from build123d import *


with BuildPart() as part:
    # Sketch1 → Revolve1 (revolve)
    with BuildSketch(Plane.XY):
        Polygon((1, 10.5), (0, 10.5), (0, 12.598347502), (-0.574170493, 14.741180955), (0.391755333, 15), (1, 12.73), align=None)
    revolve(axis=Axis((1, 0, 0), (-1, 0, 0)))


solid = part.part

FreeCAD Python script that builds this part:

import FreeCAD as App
import Part
import Sketcher
Q = App.Units.Quantity


def add_polygon(sketch, points):
    """Adds a closed chain of lines whose ends are joined by coincident constraints."""
    first, n = sketch.GeometryCount, len(points)
    for a, b in zip(points, points[1:] + points[:1]):
        sketch.addGeometry(Part.LineSegment(App.Vector(*a, 0), App.Vector(*b, 0)), False)
    for i in range(n):
        sketch.addConstraint(Sketcher.Constraint("Coincident", first + i, 2, first + (i + 1) % n, 1))

doc = App.newDocument("Part")
body = doc.addObject("PartDesign::Body", "Body")

# Sketch on XY plane
sketch1 = body.newObject("Sketcher::SketchObject", "Sketch")
sketch1.AttachmentSupport = (doc.getObject("XY_Plane"), [""])
sketch1.MapMode = "FlatFace"
add_polygon(sketch1, [(0, 10.5), (1, 10.5), (1, 12.7), (0.4, 15), (-0.6, 14.7), (0, 12.6)])  # lines 0-5
sketch1.addConstraint([
    Sketcher.Constraint("Horizontal", 0),
    Sketcher.Constraint("Vertical", 1),
    Sketcher.Constraint("Vertical", 5),
    Sketcher.Constraint("PointOnObject", 4, 2, -2),
    Sketcher.Constraint("Perpendicular", 2, 3),
    Sketcher.Constraint("Perpendicular", 3, 4),
    Sketcher.Constraint("DistanceX", 0, 1, 0, 2, 1.0),
    Sketcher.Constraint("Angle", 2, Q("105 deg")),
    Sketcher.Constraint("Distance", 3, 1.0),
    Sketcher.Constraint("DistanceY", -1, 1, 2, 2, 15.0),
    Sketcher.Constraint("DistanceY", 1, 1, 1, 2, 2.23),
    Sketcher.Constraint("DistanceY", -1, 1, 0, 2, 10.5),
])
revolution = body.newObject("PartDesign::Revolution", "Revolution")
revolution.Profile = sketch1
revolution.ReferenceAxis = (sketch1, ["H_Axis"])
revolution.Angle = 360

doc.recompute()
